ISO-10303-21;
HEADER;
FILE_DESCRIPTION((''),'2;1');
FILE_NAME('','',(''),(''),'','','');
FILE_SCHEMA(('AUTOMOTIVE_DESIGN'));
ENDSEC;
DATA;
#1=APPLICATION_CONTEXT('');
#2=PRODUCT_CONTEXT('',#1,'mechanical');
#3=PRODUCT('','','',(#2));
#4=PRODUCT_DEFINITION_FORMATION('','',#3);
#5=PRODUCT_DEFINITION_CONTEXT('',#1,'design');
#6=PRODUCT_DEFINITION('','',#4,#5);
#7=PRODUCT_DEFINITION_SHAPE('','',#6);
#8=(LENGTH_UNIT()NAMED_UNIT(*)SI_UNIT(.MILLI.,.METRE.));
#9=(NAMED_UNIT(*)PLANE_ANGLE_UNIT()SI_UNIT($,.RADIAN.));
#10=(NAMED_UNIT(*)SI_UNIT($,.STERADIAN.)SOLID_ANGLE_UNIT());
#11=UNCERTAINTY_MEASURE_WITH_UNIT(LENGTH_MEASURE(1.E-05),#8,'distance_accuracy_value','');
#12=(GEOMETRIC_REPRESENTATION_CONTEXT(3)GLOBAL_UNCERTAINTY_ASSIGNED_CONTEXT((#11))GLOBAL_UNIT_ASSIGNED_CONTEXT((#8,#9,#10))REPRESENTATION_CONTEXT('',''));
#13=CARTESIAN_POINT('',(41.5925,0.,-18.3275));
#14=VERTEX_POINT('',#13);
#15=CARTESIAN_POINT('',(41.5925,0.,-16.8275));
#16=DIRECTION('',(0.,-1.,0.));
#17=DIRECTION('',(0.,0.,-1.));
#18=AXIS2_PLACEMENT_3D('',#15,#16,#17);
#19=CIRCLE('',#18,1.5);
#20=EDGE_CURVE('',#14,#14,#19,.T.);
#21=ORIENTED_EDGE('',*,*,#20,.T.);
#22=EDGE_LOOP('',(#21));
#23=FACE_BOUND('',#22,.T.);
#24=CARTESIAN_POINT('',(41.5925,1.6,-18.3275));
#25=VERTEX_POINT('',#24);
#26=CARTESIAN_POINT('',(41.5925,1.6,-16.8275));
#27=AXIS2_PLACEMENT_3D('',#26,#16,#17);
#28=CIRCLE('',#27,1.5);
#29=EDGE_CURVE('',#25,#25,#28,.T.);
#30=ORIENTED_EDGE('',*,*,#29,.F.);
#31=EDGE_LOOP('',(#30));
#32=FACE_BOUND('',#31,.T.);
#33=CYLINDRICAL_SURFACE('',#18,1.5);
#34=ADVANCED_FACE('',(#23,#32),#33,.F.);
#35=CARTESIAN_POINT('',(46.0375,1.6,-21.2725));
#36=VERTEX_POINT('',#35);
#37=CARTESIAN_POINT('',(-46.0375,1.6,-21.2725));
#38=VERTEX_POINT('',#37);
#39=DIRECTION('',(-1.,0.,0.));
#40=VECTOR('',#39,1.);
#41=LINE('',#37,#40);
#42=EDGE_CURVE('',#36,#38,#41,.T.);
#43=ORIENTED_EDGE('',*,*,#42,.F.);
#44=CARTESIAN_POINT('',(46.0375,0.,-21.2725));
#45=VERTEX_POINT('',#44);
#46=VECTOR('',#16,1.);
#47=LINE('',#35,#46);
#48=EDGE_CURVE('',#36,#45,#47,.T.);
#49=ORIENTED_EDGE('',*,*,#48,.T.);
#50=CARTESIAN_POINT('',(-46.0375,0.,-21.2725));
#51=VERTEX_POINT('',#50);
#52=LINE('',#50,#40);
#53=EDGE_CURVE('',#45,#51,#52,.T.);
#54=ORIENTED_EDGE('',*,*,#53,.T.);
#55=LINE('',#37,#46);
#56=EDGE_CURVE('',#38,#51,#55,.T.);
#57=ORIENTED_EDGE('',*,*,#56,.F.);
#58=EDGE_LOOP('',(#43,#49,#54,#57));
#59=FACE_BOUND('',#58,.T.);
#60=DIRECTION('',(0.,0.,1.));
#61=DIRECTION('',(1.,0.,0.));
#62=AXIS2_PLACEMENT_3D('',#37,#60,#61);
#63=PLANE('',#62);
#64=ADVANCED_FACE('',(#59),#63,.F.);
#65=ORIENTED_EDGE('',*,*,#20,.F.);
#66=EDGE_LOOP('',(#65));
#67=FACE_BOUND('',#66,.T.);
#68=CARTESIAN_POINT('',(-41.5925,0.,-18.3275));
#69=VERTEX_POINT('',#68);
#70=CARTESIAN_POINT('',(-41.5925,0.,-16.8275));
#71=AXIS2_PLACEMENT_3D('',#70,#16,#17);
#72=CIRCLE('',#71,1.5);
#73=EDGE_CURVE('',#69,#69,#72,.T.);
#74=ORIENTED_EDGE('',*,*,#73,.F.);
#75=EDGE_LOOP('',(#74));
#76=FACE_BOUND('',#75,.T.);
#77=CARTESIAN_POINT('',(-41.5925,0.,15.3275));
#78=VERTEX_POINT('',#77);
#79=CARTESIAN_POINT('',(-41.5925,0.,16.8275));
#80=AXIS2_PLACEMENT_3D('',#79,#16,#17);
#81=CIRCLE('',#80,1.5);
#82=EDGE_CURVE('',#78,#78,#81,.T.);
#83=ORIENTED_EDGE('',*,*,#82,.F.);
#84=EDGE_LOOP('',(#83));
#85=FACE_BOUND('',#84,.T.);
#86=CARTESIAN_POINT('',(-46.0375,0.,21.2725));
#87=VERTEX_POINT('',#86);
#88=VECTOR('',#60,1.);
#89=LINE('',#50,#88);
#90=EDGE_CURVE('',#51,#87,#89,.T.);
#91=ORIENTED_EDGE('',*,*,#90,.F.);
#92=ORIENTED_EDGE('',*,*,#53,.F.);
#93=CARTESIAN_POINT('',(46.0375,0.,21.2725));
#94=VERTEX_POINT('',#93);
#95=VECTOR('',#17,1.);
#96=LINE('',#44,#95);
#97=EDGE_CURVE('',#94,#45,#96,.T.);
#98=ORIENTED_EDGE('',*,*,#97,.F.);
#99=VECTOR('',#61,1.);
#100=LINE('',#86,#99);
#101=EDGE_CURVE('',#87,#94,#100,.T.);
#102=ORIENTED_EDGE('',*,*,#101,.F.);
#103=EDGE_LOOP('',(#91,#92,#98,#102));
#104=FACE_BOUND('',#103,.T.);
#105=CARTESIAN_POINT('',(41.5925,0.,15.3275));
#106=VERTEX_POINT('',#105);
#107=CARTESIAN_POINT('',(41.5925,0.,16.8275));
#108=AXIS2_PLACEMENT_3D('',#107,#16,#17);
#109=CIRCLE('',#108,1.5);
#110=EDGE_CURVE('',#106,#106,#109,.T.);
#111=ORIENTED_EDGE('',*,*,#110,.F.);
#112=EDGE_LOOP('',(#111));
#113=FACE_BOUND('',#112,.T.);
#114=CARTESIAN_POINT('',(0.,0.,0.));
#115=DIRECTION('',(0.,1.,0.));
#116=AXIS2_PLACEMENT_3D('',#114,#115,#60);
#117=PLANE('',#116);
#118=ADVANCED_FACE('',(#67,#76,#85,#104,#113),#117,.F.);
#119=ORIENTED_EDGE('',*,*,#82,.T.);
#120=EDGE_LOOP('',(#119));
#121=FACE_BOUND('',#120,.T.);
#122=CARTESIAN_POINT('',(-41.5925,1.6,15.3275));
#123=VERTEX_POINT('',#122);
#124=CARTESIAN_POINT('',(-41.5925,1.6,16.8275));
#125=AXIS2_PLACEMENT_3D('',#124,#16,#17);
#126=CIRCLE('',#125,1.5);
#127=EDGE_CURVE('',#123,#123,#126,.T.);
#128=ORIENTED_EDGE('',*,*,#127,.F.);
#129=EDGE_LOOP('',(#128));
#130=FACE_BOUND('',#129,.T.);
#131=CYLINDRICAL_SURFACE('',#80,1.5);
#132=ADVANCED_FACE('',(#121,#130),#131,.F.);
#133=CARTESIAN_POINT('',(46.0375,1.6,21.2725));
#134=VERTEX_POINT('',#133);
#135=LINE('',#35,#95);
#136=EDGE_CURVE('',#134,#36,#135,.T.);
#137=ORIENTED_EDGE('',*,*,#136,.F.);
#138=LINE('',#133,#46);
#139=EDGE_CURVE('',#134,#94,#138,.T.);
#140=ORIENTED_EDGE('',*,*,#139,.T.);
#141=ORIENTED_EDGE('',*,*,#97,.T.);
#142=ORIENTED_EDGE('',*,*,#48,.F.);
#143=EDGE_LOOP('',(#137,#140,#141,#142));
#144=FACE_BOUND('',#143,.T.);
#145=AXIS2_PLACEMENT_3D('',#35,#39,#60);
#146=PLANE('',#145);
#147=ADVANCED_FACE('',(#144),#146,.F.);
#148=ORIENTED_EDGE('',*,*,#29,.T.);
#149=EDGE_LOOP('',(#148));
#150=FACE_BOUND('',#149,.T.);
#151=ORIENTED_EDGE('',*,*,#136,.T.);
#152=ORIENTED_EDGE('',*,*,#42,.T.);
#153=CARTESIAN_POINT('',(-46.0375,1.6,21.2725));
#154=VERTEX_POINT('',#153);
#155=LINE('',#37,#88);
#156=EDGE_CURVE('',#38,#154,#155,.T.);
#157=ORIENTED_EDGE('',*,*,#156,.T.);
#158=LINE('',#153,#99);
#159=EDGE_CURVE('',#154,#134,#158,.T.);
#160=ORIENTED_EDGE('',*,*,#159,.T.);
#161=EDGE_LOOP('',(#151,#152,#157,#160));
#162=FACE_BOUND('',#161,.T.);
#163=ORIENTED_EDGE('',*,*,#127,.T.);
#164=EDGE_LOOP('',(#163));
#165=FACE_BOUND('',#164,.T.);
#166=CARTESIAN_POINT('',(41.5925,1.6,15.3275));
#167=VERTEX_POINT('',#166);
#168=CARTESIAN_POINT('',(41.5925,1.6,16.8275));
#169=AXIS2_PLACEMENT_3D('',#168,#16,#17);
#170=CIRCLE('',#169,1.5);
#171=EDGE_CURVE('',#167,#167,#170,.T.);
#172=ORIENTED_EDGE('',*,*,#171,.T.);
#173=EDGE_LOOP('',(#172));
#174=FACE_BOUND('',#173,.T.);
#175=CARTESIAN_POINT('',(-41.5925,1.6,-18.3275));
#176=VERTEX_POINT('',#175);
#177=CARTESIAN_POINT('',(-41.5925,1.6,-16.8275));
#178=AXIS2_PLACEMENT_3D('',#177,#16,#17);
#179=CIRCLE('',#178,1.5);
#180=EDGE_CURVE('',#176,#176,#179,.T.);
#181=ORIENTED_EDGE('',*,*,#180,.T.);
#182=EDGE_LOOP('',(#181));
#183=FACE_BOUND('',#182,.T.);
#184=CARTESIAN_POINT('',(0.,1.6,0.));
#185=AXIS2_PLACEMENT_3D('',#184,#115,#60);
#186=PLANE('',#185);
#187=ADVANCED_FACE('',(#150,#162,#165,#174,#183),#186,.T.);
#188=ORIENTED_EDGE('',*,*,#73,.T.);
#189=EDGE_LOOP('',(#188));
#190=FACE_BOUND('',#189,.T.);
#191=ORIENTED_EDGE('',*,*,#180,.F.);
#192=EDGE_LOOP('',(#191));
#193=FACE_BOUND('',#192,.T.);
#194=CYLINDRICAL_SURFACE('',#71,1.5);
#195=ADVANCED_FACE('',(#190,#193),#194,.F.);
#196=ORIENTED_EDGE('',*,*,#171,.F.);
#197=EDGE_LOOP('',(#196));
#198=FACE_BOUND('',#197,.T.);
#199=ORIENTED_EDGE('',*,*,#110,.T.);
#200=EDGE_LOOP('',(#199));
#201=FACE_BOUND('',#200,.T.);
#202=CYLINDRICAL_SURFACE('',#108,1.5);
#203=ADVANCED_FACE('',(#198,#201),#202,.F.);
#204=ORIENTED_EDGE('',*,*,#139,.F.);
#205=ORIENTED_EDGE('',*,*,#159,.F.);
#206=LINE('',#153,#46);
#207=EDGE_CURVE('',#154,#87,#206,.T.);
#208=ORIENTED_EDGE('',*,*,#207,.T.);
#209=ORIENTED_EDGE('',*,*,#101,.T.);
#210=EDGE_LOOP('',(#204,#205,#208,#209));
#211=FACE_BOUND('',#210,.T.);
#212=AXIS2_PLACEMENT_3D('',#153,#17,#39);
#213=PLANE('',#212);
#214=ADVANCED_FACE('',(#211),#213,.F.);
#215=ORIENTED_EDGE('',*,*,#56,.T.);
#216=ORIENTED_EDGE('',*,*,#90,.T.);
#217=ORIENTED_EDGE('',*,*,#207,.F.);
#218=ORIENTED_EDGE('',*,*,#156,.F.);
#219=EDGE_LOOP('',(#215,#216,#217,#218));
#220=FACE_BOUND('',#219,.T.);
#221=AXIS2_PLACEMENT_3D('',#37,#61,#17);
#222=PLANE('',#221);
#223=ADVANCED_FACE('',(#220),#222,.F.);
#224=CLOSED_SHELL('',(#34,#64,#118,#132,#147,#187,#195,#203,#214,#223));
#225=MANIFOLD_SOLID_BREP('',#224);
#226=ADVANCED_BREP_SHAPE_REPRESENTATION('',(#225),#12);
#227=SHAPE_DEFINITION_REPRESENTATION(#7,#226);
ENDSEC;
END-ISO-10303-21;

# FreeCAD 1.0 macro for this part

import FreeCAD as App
import Part
import Sketcher

V = App.Vector


def add_polygon(sketch, points):
    """Adds a closed chain of lines whose ends are joined by coincident constraints."""
    first, n = sketch.GeometryCount, len(points)
    for a, b in zip(points, points[1:] + points[:1]):
        sketch.addGeometry(Part.LineSegment(App.Vector(*a, 0), App.Vector(*b, 0)), False)
    for i in range(n):
        sketch.addConstraint(Sketcher.Constraint("Coincident", first + i, 2, first + (i + 1) % n, 1))

doc = App.newDocument("Part")
body = doc.addObject("PartDesign::Body", "Body")

# Sketch on XZ plane
sketch1 = body.newObject("Sketcher::SketchObject", "Sketch")
sketch1.AttachmentSupport = (doc.getObject("XZ_Plane"), [""])
sketch1.MapMode = "FlatFace"
add_polygon(sketch1, [(-46.0375, -21.2725), (-46.0375, 21.2725), (46.0375, 21.2725), (46.0375, -21.2725)])  # lines 0-3
sketch1.addConstraint([
    Sketcher.Constraint("Vertical", 0),
    Sketcher.Constraint("Horizontal", 1),
    Sketcher.Constraint("Vertical", 2),
    Sketcher.Constraint("Horizontal", 3),
    Sketcher.Constraint("Symmetric", 0, 2, 2, 2, -1, 1),
    Sketcher.Constraint("DistanceX", 1, 1, 1, 2, 92.075),
    Sketcher.Constraint("DistanceY", 0, 1, 0, 2, 42.545),
])
pad1 = body.newObject("PartDesign::Pad", "Pad")
pad1.Profile = sketch1
pad1.Length = 1.6
pad1.Reversed = True

# Sketch on XZ plane
sketch2 = body.newObject("Sketcher::SketchObject", "Sketch001")
sketch2.AttachmentSupport = (doc.getObject("XZ_Plane"), [""])
sketch2.MapMode = "FlatFace"
sketch2.addGeometry([
    Part.Circle(V(-41.5925, -16.8275, 0), V(0, 0, 1), 1.5),
    Part.Circle(V(-41.5925, 16.8275, 0), V(0, 0, 1), 1.5),
    Part.Circle(V(41.5925, 16.8275, 0), V(0, 0, 1), 1.5),
    Part.Circle(V(41.5925, -16.8275, 0), V(0, 0, 1), 1.5),
], False)
sketch2.addConstraint([
    Sketcher.Constraint("Equal", 0, 1),
    Sketcher.Constraint("Equal", 1, 2),
    Sketcher.Constraint("Equal", 2, 3),
    Sketcher.Constraint("Symmetric", 0, 3, 2, 3, -1, 1),
    Sketcher.Constraint("Symmetric", 1, 3, 3, 3, -1, 1),
    Sketcher.Constraint("Symmetric", 1, 3, 2, 3, -2),
    Sketcher.Constraint("Diameter", 0, 3.0),
    Sketcher.Constraint("DistanceY", 0, 3, 1, 3, 33.655),
    Sketcher.Constraint("DistanceX", 1, 3, 2, 3, 83.185),
])
doc.recompute()
hole = body.newObject("PartDesign::Hole", "Hole")
hole.Profile = sketch2
hole.ThreadType = "None"
hole.Diameter = 3
hole.DepthType = "ThroughAll"

doc.recompute()
